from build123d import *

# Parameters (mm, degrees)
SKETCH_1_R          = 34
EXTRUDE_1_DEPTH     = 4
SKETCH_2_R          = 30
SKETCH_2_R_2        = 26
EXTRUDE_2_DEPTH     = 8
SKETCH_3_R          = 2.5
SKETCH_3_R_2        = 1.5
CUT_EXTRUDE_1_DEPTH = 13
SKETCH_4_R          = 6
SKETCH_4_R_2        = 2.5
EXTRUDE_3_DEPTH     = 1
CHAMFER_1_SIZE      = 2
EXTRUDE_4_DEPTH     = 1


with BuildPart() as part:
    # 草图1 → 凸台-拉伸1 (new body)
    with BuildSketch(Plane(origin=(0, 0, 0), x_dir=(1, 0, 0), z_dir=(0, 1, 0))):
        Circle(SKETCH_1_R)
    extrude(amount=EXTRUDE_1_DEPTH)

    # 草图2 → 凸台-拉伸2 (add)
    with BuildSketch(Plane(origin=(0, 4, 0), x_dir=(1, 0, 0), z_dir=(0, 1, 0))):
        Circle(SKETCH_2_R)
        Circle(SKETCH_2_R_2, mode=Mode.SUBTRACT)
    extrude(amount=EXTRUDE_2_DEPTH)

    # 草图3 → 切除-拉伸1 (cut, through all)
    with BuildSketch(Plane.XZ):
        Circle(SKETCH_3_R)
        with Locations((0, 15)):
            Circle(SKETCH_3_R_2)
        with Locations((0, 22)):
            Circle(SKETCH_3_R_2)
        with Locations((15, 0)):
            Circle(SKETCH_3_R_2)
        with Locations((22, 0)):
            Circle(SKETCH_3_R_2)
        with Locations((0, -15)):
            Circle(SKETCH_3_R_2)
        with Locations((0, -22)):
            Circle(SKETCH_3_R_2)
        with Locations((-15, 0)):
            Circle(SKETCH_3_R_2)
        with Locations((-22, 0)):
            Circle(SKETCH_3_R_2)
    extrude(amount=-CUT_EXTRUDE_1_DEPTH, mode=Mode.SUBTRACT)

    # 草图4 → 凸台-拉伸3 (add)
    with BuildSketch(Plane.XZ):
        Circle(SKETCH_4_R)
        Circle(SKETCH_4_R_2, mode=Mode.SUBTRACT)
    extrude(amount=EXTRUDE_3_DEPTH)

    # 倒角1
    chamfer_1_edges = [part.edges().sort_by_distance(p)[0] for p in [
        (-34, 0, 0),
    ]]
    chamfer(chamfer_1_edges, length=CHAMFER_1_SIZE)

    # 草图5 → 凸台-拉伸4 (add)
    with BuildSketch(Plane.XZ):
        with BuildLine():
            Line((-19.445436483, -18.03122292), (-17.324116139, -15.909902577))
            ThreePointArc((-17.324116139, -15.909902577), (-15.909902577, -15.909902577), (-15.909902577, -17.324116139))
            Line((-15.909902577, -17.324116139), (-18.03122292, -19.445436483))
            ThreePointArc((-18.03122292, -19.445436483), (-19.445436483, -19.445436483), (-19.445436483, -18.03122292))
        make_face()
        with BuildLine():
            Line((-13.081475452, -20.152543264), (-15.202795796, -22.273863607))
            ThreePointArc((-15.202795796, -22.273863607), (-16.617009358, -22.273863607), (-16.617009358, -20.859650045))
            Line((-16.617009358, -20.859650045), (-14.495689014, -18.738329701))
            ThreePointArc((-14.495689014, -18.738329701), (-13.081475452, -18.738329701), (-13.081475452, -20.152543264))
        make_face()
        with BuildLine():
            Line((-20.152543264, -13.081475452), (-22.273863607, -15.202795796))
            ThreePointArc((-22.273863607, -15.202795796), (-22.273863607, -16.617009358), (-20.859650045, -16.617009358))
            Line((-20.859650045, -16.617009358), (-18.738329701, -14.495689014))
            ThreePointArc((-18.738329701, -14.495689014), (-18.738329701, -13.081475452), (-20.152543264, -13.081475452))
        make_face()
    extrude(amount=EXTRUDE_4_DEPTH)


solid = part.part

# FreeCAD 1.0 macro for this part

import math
import FreeCAD as App
import Part
import Sketcher

V = App.Vector
Q = App.Units.Quantity


def edges_at(feature, points):
    """Names of the edges that pass closest to the given points."""
    edges = feature.Shape.Edges
    near = lambda p: min(range(len(edges)), key=lambda i: edges[i].distToShape(Part.Vertex(*p))[0])
    return sorted({f"Edge{near(p) + 1}" for p in points})

doc = App.newDocument("Part")
body = doc.addObject("PartDesign::Body", "Body")

# Sketch on XZ plane
sketch1 = body.newObject("Sketcher::SketchObject", "Sketch")
sketch1.AttachmentSupport = (doc.getObject("XZ_Plane"), [""])
sketch1.MapMode = "FlatFace"
sketch1.addGeometry(Part.Circle(V(0, 0, 0), V(0, 0, 1), 34), False)
sketch1.addConstraint([
    Sketcher.Constraint("Coincident", 0, 3, -1, 1),
    Sketcher.Constraint("Diameter", 0, Q("68 mm")),
])
pad1 = body.newObject("PartDesign::Pad", "Pad")
pad1.Profile = sketch1
pad1.Length = 4
pad1.Reversed = True

# Sketch on XZ plane
sketch2 = body.newObject("Sketcher::SketchObject", "Sketch001")
sketch2.AttachmentSupport = (doc.getObject("XZ_Plane"), [""])
sketch2.MapMode = "FlatFace"
sketch2.AttachmentOffset = App.Placement(V(0, 0, -4), App.Rotation())
sketch2.addGeometry([
    Part.Circle(V(0, 0, 0), V(0, 0, 1), 30),
    Part.Circle(V(0, 0, 0), V(0, 0, 1), 26),
], False)
sketch2.addConstraint([
    Sketcher.Constraint("Coincident", 0, 3, -1, 1),
    Sketcher.Constraint("Coincident", 1, 3, -1, 1),
    Sketcher.Constraint("Diameter", 0, Q("60 mm")),
    Sketcher.Constraint("Diameter", 1, Q("52 mm")),
])
pad2 = body.newObject("PartDesign::Pad", "Pad001")
pad2.Profile = sketch2
pad2.Length = 8
pad2.Reversed = True

# Sketch on XZ plane
sketch3 = body.newObject("Sketcher::SketchObject", "Sketch002")
sketch3.AttachmentSupport = (doc.getObject("XZ_Plane"), [""])
sketch3.MapMode = "FlatFace"
sketch3.addGeometry([
    Part.Circle(V(0, 0, 0), V(0, 0, 1), 2.5),  # 0
    Part.Circle(V(0, 15, 0), V(0, 0, 1), 1.5),  # 1
    Part.Circle(V(0, 22, 0), V(0, 0, 1), 1.5),  # 2
    Part.Circle(V(15, 0, 0), V(0, 0, 1), 1.5),  # 3
    Part.Circle(V(22, 0, 0), V(0, 0, 1), 1.5),  # 4
    Part.Circle(V(0, -15, 0), V(0, 0, 1), 1.5),  # 5
    Part.Circle(V(0, -22, 0), V(0, 0, 1), 1.5),  # 6
    Part.Circle(V(-15, 0, 0), V(0, 0, 1), 1.5),  # 7
    Part.Circle(V(-22, 0, 0), V(0, 0, 1), 1.5),  # 8
], False)
sketch3.addConstraint([
    Sketcher.Constraint("Coincident", 0, 3, -1, 1),
    Sketcher.Constraint("Equal", 1, 2),
    Sketcher.Constraint("Equal", 2, 3),
    Sketcher.Constraint("Equal", 3, 4),
    Sketcher.Constraint("Equal", 4, 5),
    Sketcher.Constraint("Equal", 5, 6),
    Sketcher.Constraint("Equal", 6, 7),
    Sketcher.Constraint("Equal", 7, 8),
    Sketcher.Constraint("Symmetric", 1, 3, 5, 3, -1, 1),
    Sketcher.Constraint("Symmetric", 2, 3, 6, 3, -1, 1),
    Sketcher.Constraint("Symmetric", 3, 3, 7, 3, -1, 1),
    Sketcher.Constraint("Symmetric", 4, 3, 8, 3, -1, 1),
    Sketcher.Constraint("PointOnObject", 1, 3, -2),
    Sketcher.Constraint("PointOnObject", 2, 3, -2),
    Sketcher.Constraint("PointOnObject", 3, 3, -1),
    Sketcher.Constraint("PointOnObject", 4, 3, -1),
    Sketcher.Constraint("Diameter", 0, Q("5 mm")),
    Sketcher.Constraint("Diameter", 1, Q("3 mm")),
    Sketcher.Constraint("DistanceY", -1, 1, 1, 3, Q("15 mm")),
    Sketcher.Constraint("DistanceY", -1, 1, 2, 3, Q("22 mm")),
    Sketcher.Constraint("DistanceX", -1, 1, 3, 3, Q("15 mm")),
    Sketcher.Constraint("DistanceX", -1, 1, 4, 3, Q("22 mm")),
])
pocket1 = body.newObject("PartDesign::Pocket", "Pocket")
pocket1.Profile = sketch3
pocket1.Type = "ThroughAll"

# Sketch on XZ plane
sketch4 = body.newObject("Sketcher::SketchObject", "Sketch003")
sketch4.AttachmentSupport = (doc.getObject("XZ_Plane"), [""])
sketch4.MapMode = "FlatFace"
sketch4.addGeometry([
    Part.Circle(V(0, 0, 0), V(0, 0, 1), 6),
    Part.Circle(V(0, 0, 0), V(0, 0, 1), 2.5),
], False)
sketch4.addConstraint([
    Sketcher.Constraint("Coincident", 0, 3, -1, 1),
    Sketcher.Constraint("Coincident", 1, 3, -1, 1),
    Sketcher.Constraint("Diameter", 0, Q("12 mm")),
    Sketcher.Constraint("Diameter", 1, Q("5 mm")),
])
pad3 = body.newObject("PartDesign::Pad", "Pad002")
pad3.Profile = sketch4
pad3.Length = 1
doc.recompute()

chamfer = body.newObject("PartDesign::Chamfer", "Chamfer")
chamfer.Base = (pad3, edges_at(pad3, [(-34, 0, 0)]))
chamfer.Size = 2

# Sketch on XZ plane
sketch5 = body.newObject("Sketcher::SketchObject", "Sketch004")
sketch5.AttachmentSupport = (doc.getObject("XZ_Plane"), [""])
sketch5.MapMode = "FlatFace"
sketch5.addGeometry([
    Part.LineSegment(V(-17.3, -15.9, 0), V(-19.4, -18, 0)),  # 0
    Part.ArcOfCircle(Part.Circle(V(-18.7, -18.7, 0), V(0, 0, 1), 1), math.radians(135), math.radians(315)),  # 1
    Part.LineSegment(V(-18, -19.4, 0), V(-15.9, -17.3, 0)),  # 2
    Part.ArcOfCircle(Part.Circle(V(-16.6, -16.6, 0), V(0, 0, 1), 1), math.radians(-45), math.radians(135)),  # 3
    Part.LineSegment(V(-15.2, -22.3, 0), V(-13.1, -20.2, 0)),  # 4
    Part.ArcOfCircle(Part.Circle(V(-13.8, -19.4, 0), V(0, 0, 1), 1), math.radians(-45), math.radians(135)),  # 5
    Part.LineSegment(V(-14.5, -18.7, 0), V(-16.6, -20.9, 0)),  # 6
    Part.ArcOfCircle(Part.Circle(V(-15.9, -21.6, 0), V(0, 0, 1), 1), math.radians(135), math.radians(315)),  # 7
    Part.LineSegment(V(-20.2, -13.1, 0), V(-22.3, -15.2, 0)),  # 8
    Part.ArcOfCircle(Part.Circle(V(-21.6, -15.9, 0), V(0, 0, 1), 1), math.radians(135), math.radians(315)),  # 9
    Part.LineSegment(V(-20.9, -16.6, 0), V(-18.7, -14.5, 0)),  # 10
    Part.ArcOfCircle(Part.Circle(V(-19.4, -13.8, 0), V(0, 0, 1), 1), math.radians(-45), math.radians(135)),  # 11
], False)
sketch5.addConstraint([
    Sketcher.Constraint("Tangent", 0, 2, 1, 1),
    Sketcher.Constraint("Tangent", 1, 2, 2, 1),
    Sketcher.Constraint("Tangent", 2, 2, 3, 1),
    Sketcher.Constraint("Tangent", 3, 2, 0, 1),
    Sketcher.Constraint("Tangent", 4, 2, 5, 1),
    Sketcher.Constraint("Tangent", 5, 2, 6, 1),
    Sketcher.Constraint("Tangent", 6, 2, 7, 1),
    Sketcher.Constraint("Tangent", 7, 2, 4, 1),
    Sketcher.Constraint("Tangent", 8, 2, 9, 1),
    Sketcher.Constraint("Tangent", 9, 2, 10, 1),
    Sketcher.Constraint("Tangent", 10, 2, 11, 1),
    Sketcher.Constraint("Tangent", 11, 2, 8, 1),
    Sketcher.Constraint("Equal", 1, 3),
    Sketcher.Constraint("Equal", 3, 5),
    Sketcher.Constraint("Equal", 5, 7),
    Sketcher.Constraint("Equal", 7, 9),
    Sketcher.Constraint("Equal", 9, 11),
    Sketcher.Constraint("Parallel", 2, 4),
    Sketcher.Constraint("Parallel", 6, 8),
    Sketcher.Constraint("Horizontal", 5, 3, 1, 2),
    Sketcher.Constraint("Horizontal", 9, 3, 3, 2),
    Sketcher.Constraint("Vertical", 11, 3, 0, 2),
    Sketcher.Constraint("Vertical", 7, 3, 2, 2),
    Sketcher.Constraint("Equal", 2, 4),
    Sketcher.Constraint("Equal", 6, 8),
    Sketcher.Constraint("Radius", 1, Q("1 mm")),
    Sketcher.Constraint("Angle", 0, Q("-135 deg")),
    Sketcher.Constraint("Distance", 0, Q("3 mm")),
    Sketcher.Constraint("DistanceX", 1, 3, -1, 1, Q("18.73833 mm")),
    Sketcher.Constraint("DistanceY", 1, 3, -1, 1, Q("18.73833 mm")),
])
pad4 = body.newObject("PartDesign::Pad", "Pad003")
pad4.Profile = sketch5
pad4.Length = 1

doc.recompute()
